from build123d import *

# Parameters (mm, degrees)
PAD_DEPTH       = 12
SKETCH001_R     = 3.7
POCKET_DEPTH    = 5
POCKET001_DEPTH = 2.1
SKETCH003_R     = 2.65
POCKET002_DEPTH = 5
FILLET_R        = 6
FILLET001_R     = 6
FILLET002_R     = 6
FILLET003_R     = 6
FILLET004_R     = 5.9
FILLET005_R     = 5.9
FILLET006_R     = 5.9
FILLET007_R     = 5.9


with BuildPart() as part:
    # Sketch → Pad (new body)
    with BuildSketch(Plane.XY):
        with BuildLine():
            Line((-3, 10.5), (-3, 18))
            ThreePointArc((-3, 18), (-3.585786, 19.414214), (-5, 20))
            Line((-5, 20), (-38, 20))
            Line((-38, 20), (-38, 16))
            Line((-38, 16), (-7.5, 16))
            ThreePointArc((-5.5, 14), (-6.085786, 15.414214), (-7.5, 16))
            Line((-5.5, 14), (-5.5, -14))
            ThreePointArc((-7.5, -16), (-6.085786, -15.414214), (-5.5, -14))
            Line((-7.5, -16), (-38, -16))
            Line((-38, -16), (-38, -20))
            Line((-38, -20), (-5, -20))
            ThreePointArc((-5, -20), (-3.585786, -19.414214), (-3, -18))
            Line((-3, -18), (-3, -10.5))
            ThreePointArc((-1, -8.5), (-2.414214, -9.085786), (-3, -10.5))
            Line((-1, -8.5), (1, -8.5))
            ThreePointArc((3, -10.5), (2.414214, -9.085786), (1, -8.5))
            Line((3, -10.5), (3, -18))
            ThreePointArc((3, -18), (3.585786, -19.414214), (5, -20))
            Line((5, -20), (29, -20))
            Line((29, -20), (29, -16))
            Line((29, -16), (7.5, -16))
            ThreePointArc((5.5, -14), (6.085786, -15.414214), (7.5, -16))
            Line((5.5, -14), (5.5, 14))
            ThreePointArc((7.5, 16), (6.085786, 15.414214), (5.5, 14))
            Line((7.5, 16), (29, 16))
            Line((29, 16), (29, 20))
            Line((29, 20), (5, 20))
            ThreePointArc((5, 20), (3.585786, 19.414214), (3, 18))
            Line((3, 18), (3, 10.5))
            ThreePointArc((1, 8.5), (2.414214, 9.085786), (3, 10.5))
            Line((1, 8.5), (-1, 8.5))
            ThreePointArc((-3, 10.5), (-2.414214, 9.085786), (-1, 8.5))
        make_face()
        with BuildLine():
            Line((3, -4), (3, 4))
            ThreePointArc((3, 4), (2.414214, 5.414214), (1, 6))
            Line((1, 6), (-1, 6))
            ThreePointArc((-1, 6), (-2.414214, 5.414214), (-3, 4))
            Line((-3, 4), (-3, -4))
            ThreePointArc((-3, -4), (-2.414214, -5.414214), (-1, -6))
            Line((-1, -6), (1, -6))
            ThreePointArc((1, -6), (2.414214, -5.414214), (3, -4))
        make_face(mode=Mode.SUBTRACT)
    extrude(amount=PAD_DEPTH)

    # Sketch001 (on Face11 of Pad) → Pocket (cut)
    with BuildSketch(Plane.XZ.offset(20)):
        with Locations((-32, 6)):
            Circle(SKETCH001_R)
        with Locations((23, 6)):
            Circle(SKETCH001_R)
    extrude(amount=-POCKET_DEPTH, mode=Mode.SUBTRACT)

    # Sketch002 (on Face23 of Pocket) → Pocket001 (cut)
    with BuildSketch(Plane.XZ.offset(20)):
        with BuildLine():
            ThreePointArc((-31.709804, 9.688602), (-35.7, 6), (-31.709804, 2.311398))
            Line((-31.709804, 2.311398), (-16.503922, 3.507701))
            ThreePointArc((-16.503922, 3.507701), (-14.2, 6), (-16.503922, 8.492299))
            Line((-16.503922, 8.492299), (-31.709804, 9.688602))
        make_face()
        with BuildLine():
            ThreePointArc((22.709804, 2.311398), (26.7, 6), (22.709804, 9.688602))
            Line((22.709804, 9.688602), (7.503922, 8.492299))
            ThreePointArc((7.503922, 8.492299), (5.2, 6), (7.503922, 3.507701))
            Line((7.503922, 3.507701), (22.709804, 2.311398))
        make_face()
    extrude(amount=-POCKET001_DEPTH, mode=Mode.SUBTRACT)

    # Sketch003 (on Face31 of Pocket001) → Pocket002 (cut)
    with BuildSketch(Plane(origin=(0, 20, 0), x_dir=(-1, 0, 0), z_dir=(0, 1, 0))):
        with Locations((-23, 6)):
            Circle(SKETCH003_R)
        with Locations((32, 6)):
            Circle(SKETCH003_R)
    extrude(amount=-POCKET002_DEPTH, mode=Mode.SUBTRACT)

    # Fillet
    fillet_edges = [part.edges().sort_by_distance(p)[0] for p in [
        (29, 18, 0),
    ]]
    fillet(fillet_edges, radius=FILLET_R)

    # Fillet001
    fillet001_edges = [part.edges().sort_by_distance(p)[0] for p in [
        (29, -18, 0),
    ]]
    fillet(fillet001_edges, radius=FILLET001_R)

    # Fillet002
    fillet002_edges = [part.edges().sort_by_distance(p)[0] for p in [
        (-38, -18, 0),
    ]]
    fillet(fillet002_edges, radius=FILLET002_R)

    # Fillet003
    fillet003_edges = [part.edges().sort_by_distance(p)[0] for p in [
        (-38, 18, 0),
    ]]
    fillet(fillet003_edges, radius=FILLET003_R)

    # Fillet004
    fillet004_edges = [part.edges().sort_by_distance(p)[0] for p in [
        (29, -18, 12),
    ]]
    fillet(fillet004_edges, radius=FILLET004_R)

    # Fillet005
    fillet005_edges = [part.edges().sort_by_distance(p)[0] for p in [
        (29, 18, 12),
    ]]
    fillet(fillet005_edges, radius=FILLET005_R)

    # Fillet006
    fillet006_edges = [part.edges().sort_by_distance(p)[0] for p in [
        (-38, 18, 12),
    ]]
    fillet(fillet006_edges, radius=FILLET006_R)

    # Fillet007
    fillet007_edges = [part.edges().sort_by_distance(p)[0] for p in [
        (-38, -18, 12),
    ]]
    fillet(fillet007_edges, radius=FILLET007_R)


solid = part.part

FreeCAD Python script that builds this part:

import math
import FreeCAD as App
import Part
import Sketcher


def edges_at(feature, points):
    """Names of the edges that pass closest to the given points."""
    edges = feature.Shape.Edges
    near = lambda p: min(range(len(edges)), key=lambda i: edges[i].distToShape(Part.Vertex(*p))[0])
    return sorted({f"Edge{near(p) + 1}" for p in points})

doc = App.newDocument("Part")
params = doc.addObject("Spreadsheet::Sheet", "Params")
for row, (alias, value) in enumerate([
    ("sketch1_radius", "1.999999 mm"),
    ("sketch1_width", "33 mm"),
    ("sketch1_width2", "2 mm"),
    ("sketch1_width3", "24 mm"),
    ("sketch1_height", "4 mm"),
    ("pad1_length", "12 mm"),
    ("sketch2_diameter", "7.4 mm"),
    ("pocket1_length", "5 mm"),
    ("sketch3_radius", "3.7 mm"),
    ("sketch3_radius2", "2.5 mm"),
    ("pocket2_length", "2.1 mm"),
    ("sketch4_diameter", "5.3 mm"),
    ("pocket3_length", "5 mm"),
    ("fillet_radius", "6 mm"),
    ("fillet2_radius", "6 mm"),
    ("fillet3_radius", "6 mm"),
    ("fillet4_radius", "6 mm"),
    ("fillet5_radius", "5.9 mm"),
    ("fillet6_radius", "5.9 mm"),
    ("fillet7_radius", "5.9 mm"),
    ("fillet8_radius", "5.9 mm"),
], start=1):
    params.set(f"A{row}", alias)
    params.set(f"B{row}", "=" + value)
    params.setAlias(f"B{row}", alias)

body = doc.addObject("PartDesign::Body", "Body")

# Sketch on XY plane
sketch1 = doc.addObject("Sketcher::SketchObject", "Sketch")
body.addObject(sketch1)
sketch1.AttachmentSupport = (doc.XY_Plane, [""])
sketch1.MapMode = "FlatFace"
sketch1.addGeometry(Part.LineSegment(App.Vector(-3, 10.5, 0), App.Vector(-3, 18, 0)), False)
sketch1.addGeometry(Part.ArcOfCircle(Part.Circle(App.Vector(-5, 18, 0), App.Vector(0, 0, 1), 2), math.radians(0), math.radians(90)), False)
sketch1.addGeometry(Part.LineSegment(App.Vector(-5, 20, 0), App.Vector(-38, 20, 0)), False)
sketch1.addGeometry(Part.LineSegment(App.Vector(-38, 20, 0), App.Vector(-38, 16, 0)), False)
sketch1.addGeometry(Part.LineSegment(App.Vector(-38, 16, 0), App.Vector(-7.5, 16, 0)), False)
sketch1.addGeometry(Part.ArcOfCircle(Part.Circle(App.Vector(-7.5, 14, 0), App.Vector(0, 0, 1), 2), math.radians(0), math.radians(90)), False)
sketch1.addGeometry(Part.LineSegment(App.Vector(-5.5, 14, 0), App.Vector(-5.5, -14, 0)), False)
sketch1.addGeometry(Part.ArcOfCircle(Part.Circle(App.Vector(-7.5, -14, 0), App.Vector(0, 0, 1), 2), math.radians(-90), math.radians(0)), False)
sketch1.addGeometry(Part.LineSegment(App.Vector(-7.5, -16, 0), App.Vector(-38, -16, 0)), False)
sketch1.addGeometry(Part.LineSegment(App.Vector(-38, -16, 0), App.Vector(-38, -20, 0)), False)
sketch1.addGeometry(Part.LineSegment(App.Vector(-38, -20, 0), App.Vector(-5, -20, 0)), False)
sketch1.addGeometry(Part.ArcOfCircle(Part.Circle(App.Vector(-5, -18, 0), App.Vector(0, 0, 1), 2), math.radians(-90), math.radians(0)), False)
sketch1.addGeometry(Part.LineSegment(App.Vector(-3, -18, 0), App.Vector(-3, -10.5, 0)), False)
sketch1.addGeometry(Part.ArcOfCircle(Part.Circle(App.Vector(-1, -10.5, 0), App.Vector(0, 0, 1), 2), math.radians(90), math.radians(180)), False)
sketch1.addGeometry(Part.LineSegment(App.Vector(-1, -8.5, 0), App.Vector(1, -8.5, 0)), False)
sketch1.addGeometry(Part.ArcOfCircle(Part.Circle(App.Vector(1, -10.5, 0), App.Vector(0, 0, 1), 2), math.radians(0), math.radians(90)), False)
sketch1.addGeometry(Part.LineSegment(App.Vector(3, -10.5, 0), App.Vector(3, -18, 0)), False)
sketch1.addGeometry(Part.ArcOfCircle(Part.Circle(App.Vector(5, -18, 0), App.Vector(0, 0, 1), 2), math.radians(180), math.radians(270)), False)
sketch1.addGeometry(Part.LineSegment(App.Vector(5, -20, 0), App.Vector(29, -20, 0)), False)
sketch1.addGeometry(Part.LineSegment(App.Vector(29, -20, 0), App.Vector(29, -16, 0)), False)
sketch1.addGeometry(Part.LineSegment(App.Vector(29, -16, 0), App.Vector(7.5, -16, 0)), False)
sketch1.addGeometry(Part.ArcOfCircle(Part.Circle(App.Vector(7.5, -14, 0), App.Vector(0, 0, 1), 2), math.radians(180), math.radians(270)), False)
sketch1.addGeometry(Part.LineSegment(App.Vector(5.5, -14, 0), App.Vector(5.5, 14, 0)), False)
sketch1.addGeometry(Part.ArcOfCircle(Part.Circle(App.Vector(7.5, 14, 0), App.Vector(0, 0, 1), 2), math.radians(90), math.radians(180)), False)
sketch1.addGeometry(Part.LineSegment(App.Vector(7.5, 16, 0), App.Vector(29, 16, 0)), False)
sketch1.addGeometry(Part.LineSegment(App.Vector(29, 16, 0), App.Vector(29, 20, 0)), False)
sketch1.addGeometry(Part.LineSegment(App.Vector(29, 20, 0), App.Vector(5, 20, 0)), False)
sketch1.addGeometry(Part.ArcOfCircle(Part.Circle(App.Vector(5, 18, 0), App.Vector(0, 0, 1), 2), math.radians(90), math.radians(180)), False)
sketch1.addGeometry(Part.LineSegment(App.Vector(3, 18, 0), App.Vector(3, 10.5, 0)), False)
sketch1.addGeometry(Part.ArcOfCircle(Part.Circle(App.Vector(1, 10.5, 0), App.Vector(0, 0, 1), 2), math.radians(-90), math.radians(0)), False)
sketch1.addGeometry(Part.LineSegment(App.Vector(1, 8.5, 0), App.Vector(-1, 8.5, 0)), False)
sketch1.addGeometry(Part.ArcOfCircle(Part.Circle(App.Vector(-1, 10.5, 0), App.Vector(0, 0, 1), 2), math.radians(180), math.radians(270)), False)
sketch1.addGeometry(Part.LineSegment(App.Vector(3, 4, 0), App.Vector(3, -4, 0)), False)
sketch1.addGeometry(Part.ArcOfCircle(Part.Circle(App.Vector(1, -4, 0), App.Vector(0, 0, 1), 2), math.radians(-90), math.radians(0)), False)
sketch1.addGeometry(Part.LineSegment(App.Vector(1, -6, 0), App.Vector(-1, -6, 0)), False)
sketch1.addGeometry(Part.ArcOfCircle(Part.Circle(App.Vector(-1, -4, 0), App.Vector(0, 0, 1), 2), math.radians(180), math.radians(270)), False)
sketch1.addGeometry(Part.LineSegment(App.Vector(-3, -4, 0), App.Vector(-3, 4, 0)), False)
sketch1.addGeometry(Part.ArcOfCircle(Part.Circle(App.Vector(-1, 4, 0), App.Vector(0, 0, 1), 2), math.radians(90), math.radians(180)), False)
sketch1.addGeometry(Part.LineSegment(App.Vector(-1, 6, 0), App.Vector(1, 6, 0)), False)
sketch1.addGeometry(Part.ArcOfCircle(Part.Circle(App.Vector(1, 4, 0), App.Vector(0, 0, 1), 2), math.radians(0), math.radians(90)), False)
sketch1.addConstraint(Sketcher.Constraint("Tangent", 0, 2, 1, 1))
sketch1.addConstraint(Sketcher.Constraint("Tangent", 1, 2, 2, 1))
sketch1.addConstraint(Sketcher.Constraint("Coincident", 2, 2, 3, 1))
sketch1.addConstraint(Sketcher.Constraint("Coincident", 3, 2, 4, 1))
sketch1.addConstraint(Sketcher.Constraint("Tangent", 4, 2, 5, 2))
sketch1.addConstraint(Sketcher.Constraint("Tangent", 5, 1, 6, 1))
sketch1.addConstraint(Sketcher.Constraint("Tangent", 6, 2, 7, 2))
sketch1.addConstraint(Sketcher.Constraint("Tangent", 7, 1, 8, 1))
sketch1.addConstraint(Sketcher.Constraint("Coincident", 8, 2, 9, 1))
sketch1.addConstraint(Sketcher.Constraint("Coincident", 9, 2, 10, 1))
sketch1.addConstraint(Sketcher.Constraint("Tangent", 10, 2, 11, 1))
sketch1.addConstraint(Sketcher.Constraint("Tangent", 11, 2, 12, 1))
sketch1.addConstraint(Sketcher.Constraint("Tangent", 12, 2, 13, 2))
sketch1.addConstraint(Sketcher.Constraint("Tangent", 13, 1, 14, 1))
sketch1.addConstraint(Sketcher.Constraint("Tangent", 14, 2, 15, 2))
sketch1.addConstraint(Sketcher.Constraint("Tangent", 15, 1, 16, 1))
sketch1.addConstraint(Sketcher.Constraint("Tangent", 16, 2, 17, 1))
sketch1.addConstraint(Sketcher.Constraint("Tangent", 17, 2, 18, 1))
sketch1.addConstraint(Sketcher.Constraint("Coincident", 18, 2, 19, 1))
sketch1.addConstraint(Sketcher.Constraint("Coincident", 19, 2, 20, 1))
sketch1.addConstraint(Sketcher.Constraint("Tangent", 20, 2, 21, 2))
sketch1.addConstraint(Sketcher.Constraint("Tangent", 21, 1, 22, 1))
sketch1.addConstraint(Sketcher.Constraint("Tangent", 22, 2, 23, 2))
sketch1.addConstraint(Sketcher.Constraint("Tangent", 23, 1, 24, 1))
sketch1.addConstraint(Sketcher.Constraint("Coincident", 24, 2, 25, 1))
sketch1.addConstraint(Sketcher.Constraint("Coincident", 25, 2, 26, 1))
sketch1.addConstraint(Sketcher.Constraint("Tangent", 26, 2, 27, 1))
sketch1.addConstraint(Sketcher.Constraint("Tangent", 27, 2, 28, 1))
sketch1.addConstraint(Sketcher.Constraint("Tangent", 28, 2, 29, 2))
sketch1.addConstraint(Sketcher.Constraint("Tangent", 29, 1, 30, 1))
sketch1.addConstraint(Sketcher.Constraint("Tangent", 30, 2, 31, 2))
sketch1.addConstraint(Sketcher.Constraint("Tangent", 31, 1, 0, 1))
sketch1.addConstraint(Sketcher.Constraint("Tangent", 32, 2, 33, 2))
sketch1.addConstraint(Sketcher.Constraint("Tangent", 33, 1, 34, 1))
sketch1.addConstraint(Sketcher.Constraint("Tangent", 34, 2, 35, 2))
sketch1.addConstraint(Sketcher.Constraint("Tangent", 35, 1, 36, 1))
sketch1.addConstraint(Sketcher.Constraint("Tangent", 36, 2, 37, 2))
sketch1.addConstraint(Sketcher.Constraint("Tangent", 37, 1, 38, 1))
sketch1.addConstraint(Sketcher.Constraint("Tangent", 38, 2, 39, 2))
sketch1.addConstraint(Sketcher.Constraint("Tangent", 39, 1, 32, 1))
sketch1.addConstraint(Sketcher.Constraint("Vertical", 0))
sketch1.addConstraint(Sketcher.Constraint("Horizontal", 2))
sketch1.addConstraint(Sketcher.Constraint("Vertical", 3))
sketch1.addConstraint(Sketcher.Constraint("Horizontal", 4))
sketch1.addConstraint(Sketcher.Constraint("Vertical", 6))
sketch1.addConstraint(Sketcher.Constraint("Horizontal", 8))
sketch1.addConstraint(Sketcher.Constraint("Vertical", 9))
sketch1.addConstraint(Sketcher.Constraint("Horizontal", 10))
sketch1.addConstraint(Sketcher.Constraint("Vertical", 12))
sketch1.addConstraint(Sketcher.Constraint("Horizontal", 14))
sketch1.addConstraint(Sketcher.Constraint("Vertical", 16))
sketch1.addConstraint(Sketcher.Constraint("Horizontal", 18))
sketch1.addConstraint(Sketcher.Constraint("Vertical", 19))
sketch1.addConstraint(Sketcher.Constraint("Horizontal", 20))
sketch1.addConstraint(Sketcher.Constraint("Vertical", 22))
sketch1.addConstraint(Sketcher.Constraint("Horizontal", 24))
sketch1.addConstraint(Sketcher.Constraint("Vertical", 25))
sketch1.addConstraint(Sketcher.Constraint("Horizontal", 26))
sketch1.addConstraint(Sketcher.Constraint("Vertical", 28))
sketch1.addConstraint(Sketcher.Constraint("Horizontal", 30))
sketch1.addConstraint(Sketcher.Constraint("Vertical", 32))
sketch1.addConstraint(Sketcher.Constraint("Horizontal", 34))
sketch1.addConstraint(Sketcher.Constraint("Vertical", 36))
sketch1.addConstraint(Sketcher.Constraint("Horizontal", 38))
sketch1.addConstraint(Sketcher.Constraint("Equal", 1, 5))
sketch1.addConstraint(Sketcher.Constraint("Equal", 5, 7))
sketch1.addConstraint(Sketcher.Constraint("Equal", 7, 11))
sketch1.addConstraint(Sketcher.Constraint("Equal", 11, 13))
sketch1.addConstraint(Sketcher.Constraint("Equal", 13, 15))
sketch1.addConstraint(Sketcher.Constraint("Equal", 15, 17))
sketch1.addConstraint(Sketcher.Constraint("Equal", 17, 21))
sketch1.addConstraint(Sketcher.Constraint("Equal", 21, 23))
sketch1.addConstraint(Sketcher.Constraint("Equal", 23, 27))
sketch1.addConstraint(Sketcher.Constraint("Equal", 27, 29))
sketch1.addConstraint(Sketcher.Constraint("Equal", 29, 31))
sketch1.addConstraint(Sketcher.Constraint("Equal", 31, 33))
sketch1.addConstraint(Sketcher.Constraint("Equal", 33, 35))
sketch1.addConstraint(Sketcher.Constraint("Equal", 35, 37))
sketch1.addConstraint(Sketcher.Constraint("Equal", 37, 39))
sketch1.addConstraint(Sketcher.Constraint("Symmetric", 1, 3, 17, 3, -1, 1))
sketch1.addConstraint(Sketcher.Constraint("Symmetric", 5, 3, 21, 3, -1, 1))
sketch1.addConstraint(Sketcher.Constraint("Symmetric", 11, 3, 27, 3, -1, 1))
sketch1.addConstraint(Sketcher.Constraint("Symmetric", 33, 3, 37, 3, -1, 1))
sketch1.addConstraint(Sketcher.Constraint("Symmetric", 11, 3, 17, 3, -2))
sketch1.addConstraint(Sketcher.Constraint("Symmetric", 3, 2, 8, 2, -1))
sketch1.addConstraint(Sketcher.Constraint("Symmetric", 19, 2, 24, 2, -1))
sketch1.addConstraint(Sketcher.Constraint("Vertical", 29, 3, 33, 3))
sketch1.addConstraint(Sketcher.Constraint("Equal", 0, 12))
sketch1.addConstraint(Sketcher.Constraint("Radius", 1, 1.999999))
sketch1.addConstraint(Sketcher.Constraint("DistanceX", 2, 2, 2, 1, 33.0))
sketch1.addConstraint(Sketcher.Constraint("DistanceX", 14, 1, 14, 2, 2.0))
sketch1.addConstraint(Sketcher.Constraint("DistanceX", 18, 1, 18, 2, 24.0))
sketch1.addConstraint(Sketcher.Constraint("DistanceY", 3, 2, 3, 1, 4.0))
sketch1.addConstraint(Sketcher.Constraint("DistanceY", 6, 2, 6, 1, 28.0))
sketch1.addConstraint(Sketcher.Constraint("DistanceY", 32, 2, 32, 1, 8.0))
sketch1.addConstraint(Sketcher.Constraint("DistanceX", 4, 1, 4, 2, 30.5))
sketch1.addConstraint(Sketcher.Constraint("DistanceY", 0, 1, 0, 2, 7.5))
sketch1.setExpression("Constraints[88]", "Params.sketch1_radius")
sketch1.setExpression("Constraints[89]", "Params.sketch1_width")
sketch1.setExpression("Constraints[90]", "Params.sketch1_width2")
sketch1.setExpression("Constraints[91]", "Params.sketch1_width3")
sketch1.setExpression("Constraints[92]", "Params.sketch1_height")
pad1 = doc.addObject("PartDesign::Pad", "Pad")
body.addObject(pad1)
pad1.Profile = sketch1
pad1.setExpression("Length", "Params.pad1_length")

# Sketch on XZ plane
sketch2 = doc.addObject("Sketcher::SketchObject", "Sketch001")
body.addObject(sketch2)
sketch2.AttachmentSupport = (doc.XZ_Plane, [""])
sketch2.MapMode = "FlatFace"
sketch2.AttachmentOffset = App.Placement(App.Vector(0, 0, 20), App.Rotation())
sketch2.addGeometry(Part.Circle(App.Vector(-32, 6, 0), App.Vector(0, 0, 1), 3.7), False)
sketch2.addGeometry(Part.Circle(App.Vector(23, 6, 0), App.Vector(0, 0, 1), 3.7), False)
sketch2.addConstraint(Sketcher.Constraint("Equal", 0, 1))
sketch2.addConstraint(Sketcher.Constraint("Horizontal", 0, 3, 1, 3))
sketch2.addConstraint(Sketcher.Constraint("Diameter", 0, 7.4))
sketch2.addConstraint(Sketcher.Constraint("DistanceX", 0, 3, -1, 1, 32.0))
sketch2.addConstraint(Sketcher.Constraint("DistanceY", -1, 1, 0, 3, 6.0))
sketch2.addConstraint(Sketcher.Constraint("DistanceX", -1, 1, 1, 3, 23.0))
sketch2.setExpression("Constraints[2]", "Params.sketch2_diameter")
pocket1 = doc.addObject("PartDesign::Pocket", "Pocket")
body.addObject(pocket1)
pocket1.Profile = sketch2
pocket1.setExpression("Length", "Params.pocket1_length")

# Sketch on XZ plane
sketch3 = doc.addObject("Sketcher::SketchObject", "Sketch002")
body.addObject(sketch3)
sketch3.AttachmentSupport = (doc.XZ_Plane, [""])
sketch3.MapMode = "FlatFace"
sketch3.AttachmentOffset = App.Placement(App.Vector(0, 0, 20), App.Rotation())
sketch3.addGeometry(Part.ArcOfCircle(Part.Circle(App.Vector(-32, 6, 0), App.Vector(0, 0, 1), 3.7), math.radians(86), math.radians(274)), False)
sketch3.addGeometry(Part.LineSegment(App.Vector(-31.7, 2.3, 0), App.Vector(-16.5, 3.5, 0)), False)
sketch3.addGeometry(Part.ArcOfCircle(Part.Circle(App.Vector(-16.7, 6, 0), App.Vector(0, 0, 1), 2.5), math.radians(-86), math.radians(86)), False)
sketch3.addGeometry(Part.LineSegment(App.Vector(-16.5, 8.5, 0), App.Vector(-31.7, 9.7, 0)), False)
sketch3.addGeometry(Part.ArcOfCircle(Part.Circle(App.Vector(23, 6, 0), App.Vector(0, 0, 1), 3.7), math.radians(-94), math.radians(94)), False)
sketch3.addGeometry(Part.LineSegment(App.Vector(22.7, 9.7, 0), App.Vector(7.5, 8.5, 0)), False)
sketch3.addGeometry(Part.ArcOfCircle(Part.Circle(App.Vector(7.7, 6, 0), App.Vector(0, 0, 1), 2.5), math.radians(94), math.radians(266)), False)
sketch3.addGeometry(Part.LineSegment(App.Vector(7.5, 3.5, 0), App.Vector(22.7, 2.3, 0)), False)
sketch3.addConstraint(Sketcher.Constraint("Tangent", 0, 2, 1, 1))
sketch3.addConstraint(Sketcher.Constraint("Tangent", 1, 2, 2, 1))
sketch3.addConstraint(Sketcher.Constraint("Tangent", 2, 2, 3, 1))
sketch3.addConstraint(Sketcher.Constraint("Tangent", 3, 2, 0, 1))
sketch3.addConstraint(Sketcher.Constraint("Tangent", 4, 2, 5, 1))
sketch3.addConstraint(Sketcher.Constraint("Tangent", 5, 2, 6, 1))
sketch3.addConstraint(Sketcher.Constraint("Tangent", 6, 2, 7, 1))
sketch3.addConstraint(Sketcher.Constraint("Tangent", 7, 2, 4, 1))
sketch3.addConstraint(Sketcher.Constraint("Equal", 0, 4))
sketch3.addConstraint(Sketcher.Constraint("Equal", 2, 6))
sketch3.addConstraint(Sketcher.Constraint("Parallel", 1, 5))
sketch3.addConstraint(Sketcher.Constraint("Parallel", 3, 7))
sketch3.addConstraint(Sketcher.Constraint("Horizontal", 0, 3, 2, 3))
sketch3.addConstraint(Sketcher.Constraint("Horizontal", 2, 3, 4, 3))
sketch3.addConstraint(Sketcher.Constraint("Radius", 0, 3.7))
sketch3.addConstraint(Sketcher.Constraint("Radius", 2, 2.5))
sketch3.addConstraint(Sketcher.Constraint("DistanceX", 0, 3, -1, 1, 32.0))
sketch3.addConstraint(Sketcher.Constraint("DistanceY", -1, 1, 0, 3, 6.0))
sketch3.addConstraint(Sketcher.Constraint("DistanceX", -1, 1, 4, 3, 23.0))
sketch3.addConstraint(Sketcher.Constraint("DistanceX", 2, 3, -1, 1, 16.7))
sketch3.setExpression("Constraints[14]", "Params.sketch3_radius")
sketch3.setExpression("Constraints[15]", "Params.sketch3_radius2")
pocket2 = doc.addObject("PartDesign::Pocket", "Pocket001")
body.addObject(pocket2)
pocket2.Profile = sketch3
pocket2.setExpression("Length", "Params.pocket2_length")

# Sketch on XZ plane
sketch4 = doc.addObject("Sketcher::SketchObject", "Sketch003")
body.addObject(sketch4)
sketch4.AttachmentSupport = (doc.XZ_Plane, [""])
sketch4.MapMode = "FlatFace"
sketch4.AttachmentOffset = App.Placement(App.Vector(0, 0, -20), App.Rotation())
sketch4.addGeometry(Part.Circle(App.Vector(23, 6, 0), App.Vector(0, 0, 1), 2.6), False)
sketch4.addGeometry(Part.Circle(App.Vector(-32, 6, 0), App.Vector(0, 0, 1), 2.6), False)
sketch4.addConstraint(Sketcher.Constraint("Equal", 0, 1))
sketch4.addConstraint(Sketcher.Constraint("Horizontal", 0, 3, 1, 3))
sketch4.addConstraint(Sketcher.Constraint("Diameter", 0, 5.3))
sketch4.addConstraint(Sketcher.Constraint("DistanceX", -1, 1, 0, 3, 23.0))
sketch4.addConstraint(Sketcher.Constraint("DistanceY", -1, 1, 0, 3, 6.0))
sketch4.addConstraint(Sketcher.Constraint("DistanceX", 1, 3, -1, 1, 32.0))
sketch4.setExpression("Constraints[2]", "Params.sketch4_diameter")
pocket3 = doc.addObject("PartDesign::Pocket", "Pocket002")
body.addObject(pocket3)
pocket3.Profile = sketch4
pocket3.setExpression("Length", "Params.pocket3_length")
pocket3.Reversed = True
doc.recompute()

fillet = doc.addObject("PartDesign::Fillet", "Fillet")
body.addObject(fillet)
fillet.Base = (pocket3, edges_at(pocket3, [(29, 18, 0)]))
fillet.setExpression("Radius", "Params.fillet_radius")
doc.recompute()

fillet2 = doc.addObject("PartDesign::Fillet", "Fillet001")
body.addObject(fillet2)
fillet2.Base = (fillet, edges_at(fillet, [(29, -18, 0)]))
fillet2.setExpression("Radius", "Params.fillet2_radius")
doc.recompute()

fillet3 = doc.addObject("PartDesign::Fillet", "Fillet002")
body.addObject(fillet3)
fillet3.Base = (fillet2, edges_at(fillet2, [(-38, -18, 0)]))
fillet3.setExpression("Radius", "Params.fillet3_radius")
doc.recompute()

fillet4 = doc.addObject("PartDesign::Fillet", "Fillet003")
body.addObject(fillet4)
fillet4.Base = (fillet3, edges_at(fillet3, [(-38, 18, 0)]))
fillet4.setExpression("Radius", "Params.fillet4_radius")
doc.recompute()

fillet5 = doc.addObject("PartDesign::Fillet", "Fillet004")
body.addObject(fillet5)
fillet5.Base = (fillet4, edges_at(fillet4, [(29, -18, 12)]))
fillet5.setExpression("Radius", "Params.fillet5_radius")
doc.recompute()

fillet6 = doc.addObject("PartDesign::Fillet", "Fillet005")
body.addObject(fillet6)
fillet6.Base = (fillet5, edges_at(fillet5, [(29, 18, 12)]))
fillet6.setExpression("Radius", "Params.fillet6_radius")
doc.recompute()

fillet7 = doc.addObject("PartDesign::Fillet", "Fillet006")
body.addObject(fillet7)
fillet7.Base = (fillet6, edges_at(fillet6, [(-38, 18, 12)]))
fillet7.setExpression("Radius", "Params.fillet7_radius")
doc.recompute()

fillet8 = doc.addObject("PartDesign::Fillet", "Fillet007")
body.addObject(fillet8)
fillet8.Base = (fillet7, edges_at(fillet7, [(-38, -18, 12)]))
fillet8.setExpression("Radius", "Params.fillet8_radius")

doc.recompute()
